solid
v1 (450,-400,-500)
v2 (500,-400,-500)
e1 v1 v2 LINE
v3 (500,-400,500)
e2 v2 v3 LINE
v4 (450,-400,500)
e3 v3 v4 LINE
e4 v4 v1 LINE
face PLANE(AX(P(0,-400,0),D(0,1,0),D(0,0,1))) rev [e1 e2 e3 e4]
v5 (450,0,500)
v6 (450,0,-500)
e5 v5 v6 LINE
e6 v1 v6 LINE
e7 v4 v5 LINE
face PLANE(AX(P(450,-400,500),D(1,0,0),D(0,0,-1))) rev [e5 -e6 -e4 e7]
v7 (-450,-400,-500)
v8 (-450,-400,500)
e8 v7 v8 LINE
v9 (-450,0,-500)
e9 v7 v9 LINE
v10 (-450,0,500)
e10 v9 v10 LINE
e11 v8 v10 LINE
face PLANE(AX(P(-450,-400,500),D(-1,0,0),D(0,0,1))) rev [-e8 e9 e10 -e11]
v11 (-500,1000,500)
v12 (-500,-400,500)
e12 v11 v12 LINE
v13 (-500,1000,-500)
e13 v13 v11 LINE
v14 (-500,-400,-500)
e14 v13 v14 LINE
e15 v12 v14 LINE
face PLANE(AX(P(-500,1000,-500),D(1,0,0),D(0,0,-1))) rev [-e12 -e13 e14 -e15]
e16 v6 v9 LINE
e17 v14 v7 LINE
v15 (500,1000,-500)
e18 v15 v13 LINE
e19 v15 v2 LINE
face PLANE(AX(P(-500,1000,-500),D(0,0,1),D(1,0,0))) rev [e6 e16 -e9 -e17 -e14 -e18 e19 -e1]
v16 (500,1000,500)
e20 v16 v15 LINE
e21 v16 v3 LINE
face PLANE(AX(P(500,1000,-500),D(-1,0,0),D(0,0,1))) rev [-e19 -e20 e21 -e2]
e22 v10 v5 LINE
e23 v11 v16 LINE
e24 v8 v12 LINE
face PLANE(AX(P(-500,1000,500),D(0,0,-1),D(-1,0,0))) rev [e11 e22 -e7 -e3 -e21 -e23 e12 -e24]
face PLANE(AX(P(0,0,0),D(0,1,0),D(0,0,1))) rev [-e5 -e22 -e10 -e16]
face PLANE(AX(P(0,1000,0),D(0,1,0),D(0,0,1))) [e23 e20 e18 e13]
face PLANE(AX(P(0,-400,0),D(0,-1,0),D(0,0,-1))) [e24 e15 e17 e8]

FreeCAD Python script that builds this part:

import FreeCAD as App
import Part
import Sketcher
Q = App.Units.Quantity

doc = App.newDocument("Part")
body = doc.addObject("PartDesign::Body", "Body")

# Sketch on XZ plane
sketch1 = body.newObject("Sketcher::SketchObject", "Sketch")
sketch1.AttachmentSupport = (doc.getObject("XZ_Plane"), [""])
sketch1.MapMode = "FlatFace"
sketch1.addGeometry(Part.LineSegment(App.Vector(-500, -500, 0), App.Vector(-500, 500, 0)), False)
sketch1.addGeometry(Part.LineSegment(App.Vector(-500, 500, 0), App.Vector(500, 500, 0)), False)
sketch1.addGeometry(Part.LineSegment(App.Vector(500, 500, 0), App.Vector(500, -500, 0)), False)
sketch1.addGeometry(Part.LineSegment(App.Vector(500, -500, 0), App.Vector(-500, -500, 0)), False)
sketch1.addConstraint(Sketcher.Constraint("Coincident", 0, 2, 1, 1))
sketch1.addConstraint(Sketcher.Constraint("Coincident", 1, 2, 2, 1))
sketch1.addConstraint(Sketcher.Constraint("Coincident", 2, 2, 3, 1))
sketch1.addConstraint(Sketcher.Constraint("Coincident", 3, 2, 0, 1))
sketch1.addConstraint(Sketcher.Constraint("Vertical", 0))
sketch1.addConstraint(Sketcher.Constraint("Horizontal", 1))
sketch1.addConstraint(Sketcher.Constraint("Vertical", 2))
sketch1.addConstraint(Sketcher.Constraint("Horizontal", 3))
sketch1.addConstraint(Sketcher.Constraint("Symmetric", 0, 2, 2, 2, -1, 1))
sketch1.addConstraint(Sketcher.Constraint("Equal", 3, 0))
sketch1.addConstraint(Sketcher.Constraint("DistanceX", 1, 1, 1, 2, Q("1000 mm")))
pad1 = body.newObject("PartDesign::Pad", "Pad")
pad1.Profile = sketch1
pad1.Length = 1000
pad1.Reversed = True

# Sketch on XZ plane
sketch2 = body.newObject("Sketcher::SketchObject", "Sketch001")
sketch2.AttachmentSupport = (doc.getObject("XZ_Plane"), [""])
sketch2.MapMode = "FlatFace"
sketch2.addGeometry(Part.LineSegment(App.Vector(-500, 500, 0), App.Vector(-500, -500, 0)), False)
sketch2.addGeometry(Part.LineSegment(App.Vector(-500, -500, 0), App.Vector(-450, -500, 0)), False)
sketch2.addGeometry(Part.LineSegment(App.Vector(-450, -500, 0), App.Vector(-450, 500, 0)), False)
sketch2.addGeometry(Part.LineSegment(App.Vector(-450, 500, 0), App.Vector(-500, 500, 0)), False)
sketch2.addGeometry(Part.LineSegment(App.Vector(450, 500, 0), App.Vector(450, -500, 0)), False)
sketch2.addGeometry(Part.LineSegment(App.Vector(450, -500, 0), App.Vector(500, -500, 0)), False)
sketch2.addGeometry(Part.LineSegment(App.Vector(500, -500, 0), App.Vector(500, 500, 0)), False)
sketch2.addGeometry(Part.LineSegment(App.Vector(500, 500, 0), App.Vector(450, 500, 0)), False)
sketch2.addConstraint(Sketcher.Constraint("Coincident", 0, 2, 1, 1))
sketch2.addConstraint(Sketcher.Constraint("Coincident", 1, 2, 2, 1))
sketch2.addConstraint(Sketcher.Constraint("Coincident", 2, 2, 3, 1))
sketch2.addConstraint(Sketcher.Constraint("Coincident", 3, 2, 0, 1))
sketch2.addConstraint(Sketcher.Constraint("Coincident", 4, 2, 5, 1))
sketch2.addConstraint(Sketcher.Constraint("Coincident", 5, 2, 6, 1))
sketch2.addConstraint(Sketcher.Constraint("Coincident", 6, 2, 7, 1))
sketch2.addConstraint(Sketcher.Constraint("Coincident", 7, 2, 4, 1))
sketch2.addConstraint(Sketcher.Constraint("Vertical", 0))
sketch2.addConstraint(Sketcher.Constraint("Horizontal", 1))
sketch2.addConstraint(Sketcher.Constraint("Vertical", 2))
sketch2.addConstraint(Sketcher.Constraint("Horizontal", 3))
sketch2.addConstraint(Sketcher.Constraint("Vertical", 4))
sketch2.addConstraint(Sketcher.Constraint("Horizontal", 5))
sketch2.addConstraint(Sketcher.Constraint("Vertical", 6))
sketch2.addConstraint(Sketcher.Constraint("Horizontal", 7))
sketch2.addConstraint(Sketcher.Constraint("Symmetric", 2, 2, 4, 2, -1, 1))
sketch2.addConstraint(Sketcher.Constraint("Symmetric", 0, 2, 6, 2, -1, 1))
sketch2.addConstraint(Sketcher.Constraint("Horizontal", 1, 2, 4, 2))
sketch2.addConstraint(Sketcher.Constraint("DistanceX", 1, 1, 1, 2, Q("50 mm")))
sketch2.addConstraint(Sketcher.Constraint("DistanceY", 0, 2, 0, 1, Q("1000 mm")))
sketch2.addConstraint(Sketcher.Constraint("DistanceX", 0, 2, -1, 1, Q("500 mm")))
pad2 = body.newObject("PartDesign::Pad", "Pad001")
pad2.Profile = sketch2
pad2.Length = 400

doc.recompute()
